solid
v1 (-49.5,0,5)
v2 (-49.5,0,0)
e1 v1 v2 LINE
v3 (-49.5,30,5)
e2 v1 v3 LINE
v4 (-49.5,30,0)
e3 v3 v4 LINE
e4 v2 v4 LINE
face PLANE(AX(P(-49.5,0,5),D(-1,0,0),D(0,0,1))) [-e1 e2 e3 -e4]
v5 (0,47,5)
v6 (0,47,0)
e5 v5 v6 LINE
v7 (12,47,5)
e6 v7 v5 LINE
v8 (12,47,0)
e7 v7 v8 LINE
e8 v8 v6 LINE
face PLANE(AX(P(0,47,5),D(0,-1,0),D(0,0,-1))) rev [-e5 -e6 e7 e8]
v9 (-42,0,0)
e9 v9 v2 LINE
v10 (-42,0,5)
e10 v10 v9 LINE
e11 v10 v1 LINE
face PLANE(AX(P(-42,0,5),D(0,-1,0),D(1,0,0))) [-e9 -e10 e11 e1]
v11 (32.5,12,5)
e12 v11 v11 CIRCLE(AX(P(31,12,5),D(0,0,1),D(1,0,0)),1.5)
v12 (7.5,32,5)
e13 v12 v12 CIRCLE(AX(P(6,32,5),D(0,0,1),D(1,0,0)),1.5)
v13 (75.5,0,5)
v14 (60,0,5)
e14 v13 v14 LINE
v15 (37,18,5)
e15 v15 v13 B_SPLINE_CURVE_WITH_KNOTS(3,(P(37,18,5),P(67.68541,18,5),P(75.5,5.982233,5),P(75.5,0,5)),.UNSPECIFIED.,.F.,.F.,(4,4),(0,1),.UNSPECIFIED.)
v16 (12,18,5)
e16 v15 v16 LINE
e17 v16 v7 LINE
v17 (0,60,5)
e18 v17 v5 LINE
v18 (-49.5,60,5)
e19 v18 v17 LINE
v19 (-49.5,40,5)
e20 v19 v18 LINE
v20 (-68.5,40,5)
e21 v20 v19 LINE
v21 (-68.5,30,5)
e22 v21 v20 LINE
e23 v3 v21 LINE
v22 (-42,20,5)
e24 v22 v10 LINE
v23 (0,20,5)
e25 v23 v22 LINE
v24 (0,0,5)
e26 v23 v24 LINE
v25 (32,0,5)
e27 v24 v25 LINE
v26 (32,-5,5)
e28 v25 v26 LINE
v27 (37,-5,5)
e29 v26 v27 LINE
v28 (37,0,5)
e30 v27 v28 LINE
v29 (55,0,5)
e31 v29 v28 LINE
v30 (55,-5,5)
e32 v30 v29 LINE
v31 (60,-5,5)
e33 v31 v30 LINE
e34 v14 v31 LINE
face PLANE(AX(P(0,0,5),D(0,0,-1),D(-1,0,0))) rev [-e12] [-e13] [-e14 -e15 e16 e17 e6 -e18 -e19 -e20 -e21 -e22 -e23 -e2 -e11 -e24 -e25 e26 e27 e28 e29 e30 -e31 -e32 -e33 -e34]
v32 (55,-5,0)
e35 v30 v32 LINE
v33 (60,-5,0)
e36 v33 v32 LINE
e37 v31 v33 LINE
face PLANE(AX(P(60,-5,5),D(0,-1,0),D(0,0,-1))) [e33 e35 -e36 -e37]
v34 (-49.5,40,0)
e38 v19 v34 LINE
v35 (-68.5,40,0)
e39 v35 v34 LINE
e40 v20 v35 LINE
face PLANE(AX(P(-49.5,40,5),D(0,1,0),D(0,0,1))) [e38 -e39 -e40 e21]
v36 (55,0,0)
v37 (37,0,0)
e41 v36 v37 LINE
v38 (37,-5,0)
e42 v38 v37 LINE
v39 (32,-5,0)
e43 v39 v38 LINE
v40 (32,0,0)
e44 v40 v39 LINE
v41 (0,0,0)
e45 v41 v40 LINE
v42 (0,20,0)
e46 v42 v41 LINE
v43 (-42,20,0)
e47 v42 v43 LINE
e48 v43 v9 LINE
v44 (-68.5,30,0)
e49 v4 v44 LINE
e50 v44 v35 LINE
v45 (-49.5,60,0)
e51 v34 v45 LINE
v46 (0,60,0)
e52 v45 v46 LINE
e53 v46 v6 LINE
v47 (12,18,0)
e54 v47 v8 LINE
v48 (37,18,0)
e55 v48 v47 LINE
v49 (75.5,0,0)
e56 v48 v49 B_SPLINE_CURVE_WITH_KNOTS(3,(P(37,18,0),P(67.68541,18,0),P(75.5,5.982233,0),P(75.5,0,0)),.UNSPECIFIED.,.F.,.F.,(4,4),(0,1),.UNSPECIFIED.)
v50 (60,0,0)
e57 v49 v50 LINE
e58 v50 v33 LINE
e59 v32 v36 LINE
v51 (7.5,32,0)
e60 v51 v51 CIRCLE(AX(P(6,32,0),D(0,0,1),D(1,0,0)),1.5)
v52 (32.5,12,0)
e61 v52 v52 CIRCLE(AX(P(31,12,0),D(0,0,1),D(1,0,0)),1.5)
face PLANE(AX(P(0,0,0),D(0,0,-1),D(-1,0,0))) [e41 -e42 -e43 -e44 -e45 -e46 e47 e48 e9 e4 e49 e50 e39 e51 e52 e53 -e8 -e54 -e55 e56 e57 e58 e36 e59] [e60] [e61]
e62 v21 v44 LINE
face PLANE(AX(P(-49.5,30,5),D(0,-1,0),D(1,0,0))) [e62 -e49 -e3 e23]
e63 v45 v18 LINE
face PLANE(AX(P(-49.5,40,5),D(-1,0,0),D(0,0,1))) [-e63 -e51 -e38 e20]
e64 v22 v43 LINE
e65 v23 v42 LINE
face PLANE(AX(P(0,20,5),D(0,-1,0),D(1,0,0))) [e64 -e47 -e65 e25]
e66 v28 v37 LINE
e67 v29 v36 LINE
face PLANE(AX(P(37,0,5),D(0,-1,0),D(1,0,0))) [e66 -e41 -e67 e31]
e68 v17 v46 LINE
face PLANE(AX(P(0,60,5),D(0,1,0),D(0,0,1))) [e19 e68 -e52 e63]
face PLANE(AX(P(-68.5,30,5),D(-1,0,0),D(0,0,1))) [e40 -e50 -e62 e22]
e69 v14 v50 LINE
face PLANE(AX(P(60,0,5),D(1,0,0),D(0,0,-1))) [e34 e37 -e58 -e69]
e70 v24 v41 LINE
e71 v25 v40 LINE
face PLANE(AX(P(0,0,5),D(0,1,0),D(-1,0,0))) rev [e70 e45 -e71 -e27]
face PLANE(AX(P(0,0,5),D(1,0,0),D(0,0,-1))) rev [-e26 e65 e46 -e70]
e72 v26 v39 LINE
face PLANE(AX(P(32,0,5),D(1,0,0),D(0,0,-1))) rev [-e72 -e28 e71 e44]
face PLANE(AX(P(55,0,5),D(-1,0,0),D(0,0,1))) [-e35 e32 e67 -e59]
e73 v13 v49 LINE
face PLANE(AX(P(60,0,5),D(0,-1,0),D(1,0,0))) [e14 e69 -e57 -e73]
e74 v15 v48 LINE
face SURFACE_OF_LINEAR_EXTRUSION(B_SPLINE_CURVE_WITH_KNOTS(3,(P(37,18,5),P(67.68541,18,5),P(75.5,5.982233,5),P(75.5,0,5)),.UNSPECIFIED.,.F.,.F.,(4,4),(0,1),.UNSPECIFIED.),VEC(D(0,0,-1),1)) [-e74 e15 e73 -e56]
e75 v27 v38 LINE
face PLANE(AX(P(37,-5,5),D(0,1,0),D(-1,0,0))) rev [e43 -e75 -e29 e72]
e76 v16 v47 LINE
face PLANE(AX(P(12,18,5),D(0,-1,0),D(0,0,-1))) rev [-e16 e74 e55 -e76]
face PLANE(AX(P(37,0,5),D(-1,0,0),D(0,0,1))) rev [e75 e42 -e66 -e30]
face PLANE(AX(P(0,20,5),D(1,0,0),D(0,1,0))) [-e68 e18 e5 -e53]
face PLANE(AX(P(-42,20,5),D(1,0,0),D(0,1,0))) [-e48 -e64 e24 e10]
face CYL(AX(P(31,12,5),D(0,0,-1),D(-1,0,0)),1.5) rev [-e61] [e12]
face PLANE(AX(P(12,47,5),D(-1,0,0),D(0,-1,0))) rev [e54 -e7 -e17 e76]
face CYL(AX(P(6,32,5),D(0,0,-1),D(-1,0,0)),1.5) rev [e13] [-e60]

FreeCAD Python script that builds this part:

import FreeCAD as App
import Part
import Sketcher
Q = App.Units.Quantity

doc = App.newDocument("Part")
body = doc.addObject("PartDesign::Body", "Body")

# Sketch on XY plane
sketch1 = body.newObject("Sketcher::SketchObject", "Sketch")
sketch1.AttachmentSupport = (doc.getObject("XY_Plane"), [""])
sketch1.MapMode = "FlatFace"
sketch1.addGeometry([
    Part.LineSegment(App.Vector(0, 0, 0), App.Vector(32, 0, 0)),  # 0
    Part.LineSegment(App.Vector(32, 0, 0), App.Vector(32, -5, 0)),  # 1
    Part.LineSegment(App.Vector(32, -5, 0), App.Vector(37, -5, 0)),  # 2
    Part.LineSegment(App.Vector(37, -5, 0), App.Vector(37, 18, 0)),  # 3
    Part.LineSegment(App.Vector(37, 18, 0), App.Vector(12, 18, 0)),  # 4
    Part.LineSegment(App.Vector(12, 18, 0), App.Vector(12, 47, 0)),  # 5
    Part.LineSegment(App.Vector(12, 47, 0), App.Vector(0, 47, 0)),  # 6
    Part.LineSegment(App.Vector(0, 47, 0), App.Vector(0, 0, 0)),  # 7
    Part.Circle(App.Vector(31, 12, 0), App.Vector(0, 0, 1), 1.5),  # 8
    Part.Circle(App.Vector(6, 32, 0), App.Vector(0, 0, 1), 1.5),  # 9
], False)
sketch1.addConstraint([
    Sketcher.Constraint("Coincident", 0, 2, 1, 1),
    Sketcher.Constraint("Coincident", 1, 2, 2, 1),
    Sketcher.Constraint("Coincident", 2, 2, 3, 1),
    Sketcher.Constraint("Coincident", 3, 2, 4, 1),
    Sketcher.Constraint("Coincident", 4, 2, 5, 1),
    Sketcher.Constraint("Coincident", 5, 2, 6, 1),
    Sketcher.Constraint("Coincident", 6, 2, 7, 1),
    Sketcher.Constraint("Coincident", 7, 2, 0, 1),
    Sketcher.Constraint("Horizontal", 0),
    Sketcher.Constraint("Vertical", 1),
    Sketcher.Constraint("Horizontal", 2),
    Sketcher.Constraint("Vertical", 3),
    Sketcher.Constraint("Horizontal", 4),
    Sketcher.Constraint("Vertical", 5),
    Sketcher.Constraint("Horizontal", 6),
    Sketcher.Constraint("Vertical", 7),
    Sketcher.Constraint("Coincident", 7, 2, -1, 1),
    Sketcher.Constraint("Equal", 8, 9),
    Sketcher.Constraint("Equal", 2, 1),
    Sketcher.Constraint("Diameter", 8, Q("3 mm")),
    Sketcher.Constraint("DistanceX", 0, 1, 0, 2, Q("32 mm")),
    Sketcher.Constraint("DistanceX", 2, 1, 2, 2, Q("5 mm")),
    Sketcher.Constraint("DistanceX", 4, 2, 4, 1, Q("25 mm")),
    Sketcher.Constraint("DistanceY", 3, 1, 3, 2, Q("23 mm")),
    Sketcher.Constraint("DistanceY", 5, 1, 5, 2, Q("29 mm")),
    Sketcher.Constraint("DistanceX", -1, 1, 8, 3, Q("31 mm")),
    Sketcher.Constraint("DistanceY", -1, 1, 8, 3, Q("12 mm")),
    Sketcher.Constraint("DistanceX", -1, 1, 9, 3, Q("6 mm")),
    Sketcher.Constraint("DistanceY", -1, 1, 9, 3, Q("32 mm")),
])
pad1 = body.newObject("PartDesign::Pad", "Pad")
pad1.Profile = sketch1
pad1.Length = 5

# Sketch on XY plane
sketch2 = body.newObject("Sketcher::SketchObject", "Sketch001")
sketch2.AttachmentSupport = (doc.getObject("XY_Plane"), [""])
sketch2.MapMode = "FlatFace"
sketch2.addGeometry([
    Part.LineSegment(App.Vector(55, 0, 0), App.Vector(37, 0, 0)),  # 0
    Part.LineSegment(App.Vector(37, 0, 0), App.Vector(37, 18, 0)),  # 1
    Part.BSplineCurve([App.Vector(75.5, 0, 0), App.Vector(75.5, 5.982233, 0), App.Vector(67.68541, 18, 0), App.Vector(37, 18, 0)], [4, 4], [0, 1], False, 3, [1, 1, 1, 1], False),  # 2
    Part.LineSegment(App.Vector(75.5, 0, 0), App.Vector(60, 0, 0)),  # 3
    Part.LineSegment(App.Vector(60, 0, 0), App.Vector(60, -5, 0)),  # 4
    Part.LineSegment(App.Vector(60, -5, 0), App.Vector(55, -5, 0)),  # 5
    Part.LineSegment(App.Vector(55, -5, 0), App.Vector(55, 0, 0)),  # 6
    Part.LineSegment(App.Vector(-42, 0, 0), App.Vector(-49.5, 0, 0)),  # 7
    Part.LineSegment(App.Vector(-49.5, 0, 0), App.Vector(-49.5, 30, 0)),  # 8
    Part.LineSegment(App.Vector(-49.5, 30, 0), App.Vector(-68.5, 30, 0)),  # 9
    Part.LineSegment(App.Vector(-68.5, 30, 0), App.Vector(-68.5, 40, 0)),  # 10
    Part.LineSegment(App.Vector(-68.5, 40, 0), App.Vector(-49.5, 40, 0)),  # 11
    Part.LineSegment(App.Vector(-49.5, 40, 0), App.Vector(-49.5, 110, 0)),  # 12
    Part.LineSegment(App.Vector(-49.5, 110, 0), App.Vector(-68.5, 110, 0)),  # 13
    Part.LineSegment(App.Vector(-68.5, 110, 0), App.Vector(-68.5, 120, 0)),  # 14
    Part.LineSegment(App.Vector(-68.5, 120, 0), App.Vector(-49.5, 120, 0)),  # 15
    Part.LineSegment(App.Vector(-49.5, 120, 0), App.Vector(-49.5, 142, 0)),  # 16
    Part.LineSegment(App.Vector(-49.5, 142, 0), App.Vector(1, 142, 0)),  # 17
    Part.LineSegment(App.Vector(1, 142, 0), App.Vector(1, 167, 0)),  # 18
    Part.LineSegment(App.Vector(1, 167, 0), App.Vector(10, 167, 0)),  # 19
    Part.LineSegment(App.Vector(10, 167, 0), App.Vector(10, 172, 0)),  # 20
    Part.LineSegment(App.Vector(10, 172, 0), App.Vector(20, 172, 0)),  # 21
    Part.LineSegment(App.Vector(20, 172, 0), App.Vector(20, 167, 0)),  # 22
    Part.LineSegment(App.Vector(20, 167, 0), App.Vector(25, 167, 0)),  # 23
    Part.LineSegment(App.Vector(25, 167, 0), App.Vector(25, 90, 0)),  # 24
    Part.LineSegment(App.Vector(25, 90, 0), App.Vector(-20, 90, 0)),  # 25
    Part.LineSegment(App.Vector(-20, 90, 0), App.Vector(-20, 60, 0)),  # 26
    Part.LineSegment(App.Vector(-20, 60, 0), App.Vector(0, 60, 0)),  # 27
    Part.LineSegment(App.Vector(0, 60, 0), App.Vector(0, 20, 0)),  # 28
    Part.LineSegment(App.Vector(0, 20, 0), App.Vector(-42, 20, 0)),  # 29
    Part.LineSegment(App.Vector(-42, 20, 0), App.Vector(-42, 0, 0)),  # 30
], False)
sketch2.addConstraint([
    Sketcher.Constraint("Block", 2),
    Sketcher.Constraint("Coincident", 0, 2, 1, 1),
    Sketcher.Constraint("Coincident", 1, 2, 2, 2),
    Sketcher.Constraint("Coincident", 2, 1, 3, 1),
    Sketcher.Constraint("Coincident", 3, 2, 4, 1),
    Sketcher.Constraint("Coincident", 4, 2, 5, 1),
    Sketcher.Constraint("Coincident", 5, 2, 6, 1),
    Sketcher.Constraint("Coincident", 6, 2, 0, 1),
    Sketcher.Constraint("Coincident", 7, 2, 8, 1),
    Sketcher.Constraint("Coincident", 8, 2, 9, 1),
    Sketcher.Constraint("Coincident", 9, 2, 10, 1),
    Sketcher.Constraint("Coincident", 10, 2, 11, 1),
    Sketcher.Constraint("Coincident", 11, 2, 12, 1),
    Sketcher.Constraint("Coincident", 12, 2, 13, 1),
    Sketcher.Constraint("Coincident", 13, 2, 14, 1),
    Sketcher.Constraint("Coincident", 14, 2, 15, 1),
    Sketcher.Constraint("Coincident", 15, 2, 16, 1),
    Sketcher.Constraint("Coincident", 16, 2, 17, 1),
    Sketcher.Constraint("Coincident", 17, 2, 18, 1),
    Sketcher.Constraint("Coincident", 18, 2, 19, 1),
    Sketcher.Constraint("Coincident", 19, 2, 20, 1),
    Sketcher.Constraint("Coincident", 20, 2, 21, 1),
    Sketcher.Constraint("Coincident", 21, 2, 22, 1),
    Sketcher.Constraint("Coincident", 22, 2, 23, 1),
    Sketcher.Constraint("Coincident", 23, 2, 24, 1),
    Sketcher.Constraint("Coincident", 24, 2, 25, 1),
    Sketcher.Constraint("Coincident", 25, 2, 26, 1),
    Sketcher.Constraint("Coincident", 26, 2, 27, 1),
    Sketcher.Constraint("Coincident", 27, 2, 28, 1),
    Sketcher.Constraint("Coincident", 28, 2, 29, 1),
    Sketcher.Constraint("Coincident", 29, 2, 30, 1),
    Sketcher.Constraint("Coincident", 30, 2, 7, 1),
    Sketcher.Constraint("Horizontal", 0),
    Sketcher.Constraint("Vertical", 1),
    Sketcher.Constraint("Horizontal", 3),
    Sketcher.Constraint("Vertical", 4),
    Sketcher.Constraint("Horizontal", 5),
    Sketcher.Constraint("Vertical", 6),
    Sketcher.Constraint("Horizontal", 7),
    Sketcher.Constraint("Vertical", 8),
    Sketcher.Constraint("Horizontal", 9),
    Sketcher.Constraint("Vertical", 10),
    Sketcher.Constraint("Horizontal", 11),
    Sketcher.Constraint("Vertical", 12),
    Sketcher.Constraint("Horizontal", 13),
    Sketcher.Constraint("Vertical", 14),
    Sketcher.Constraint("Horizontal", 15),
    Sketcher.Constraint("Vertical", 16),
    Sketcher.Constraint("Horizontal", 17),
    Sketcher.Constraint("Vertical", 18),
    Sketcher.Constraint("Horizontal", 19),
    Sketcher.Constraint("Vertical", 20),
    Sketcher.Constraint("Horizontal", 21),
    Sketcher.Constraint("Vertical", 22),
    Sketcher.Constraint("Horizontal", 23),
    Sketcher.Constraint("Vertical", 24),
    Sketcher.Constraint("Horizontal", 25),
    Sketcher.Constraint("Vertical", 26),
    Sketcher.Constraint("Horizontal", 27),
    Sketcher.Constraint("Vertical", 28),
    Sketcher.Constraint("Horizontal", 29),
    Sketcher.Constraint("Vertical", 30),
    Sketcher.Constraint("PointOnObject", 0, 2, -1),
    Sketcher.Constraint("PointOnObject", 7, 2, -1),
    Sketcher.Constraint("PointOnObject", 27, 2, -2),
    Sketcher.Constraint("DistanceX", 0, 2, 0, 1, Q("18 mm")),
    Sketcher.Constraint("DistanceX", 5, 2, 5, 1, Q("5 mm")),
    Sketcher.Constraint("DistanceX", 9, 2, 9, 1, Q("19 mm")),
    Sketcher.Constraint("DistanceX", 11, 1, 11, 2, Q("19 mm")),
    Sketcher.Constraint("DistanceX", 13, 2, 13, 1, Q("19 mm")),
    Sketcher.Constraint("DistanceX", 15, 1, 15, 2, Q("19 mm")),
    Sketcher.Constraint("DistanceX", 19, 1, 19, 2, Q("9 mm")),
    Sketcher.Constraint("DistanceX", 21, 1, 21, 2, Q("10 mm")),
    Sketcher.Constraint("DistanceX", 23, 1, 23, 2, Q("5 mm")),
    Sketcher.Constraint("DistanceX", 25, 2, 25, 1, Q("45 mm")),
    Sketcher.Constraint("DistanceX", 27, 1, 27, 2, Q("20 mm")),
    Sketcher.Constraint("DistanceX", 29, 2, 29, 1, Q("42 mm")),
    Sketcher.Constraint("DistanceY", 4, 2, 4, 1, Q("5 mm")),
    Sketcher.Constraint("DistanceY", 8, 1, 8, 2, Q("30 mm")),
    Sketcher.Constraint("DistanceY", 10, 1, 10, 2, Q("10 mm")),
    Sketcher.Constraint("DistanceY", 12, 1, 12, 2, Q("70 mm")),
    Sketcher.Constraint("DistanceY", 14, 1, 14, 2, Q("10 mm")),
    Sketcher.Constraint("DistanceY", 16, 1, 16, 2, Q("22 mm")),
    Sketcher.Constraint("DistanceY", 18, 1, 18, 2, Q("25 mm")),
    Sketcher.Constraint("DistanceY", 20, 1, 20, 2, Q("5 mm")),
    Sketcher.Constraint("DistanceY", 22, 2, 22, 1, Q("5 mm")),
    Sketcher.Constraint("DistanceY", 24, 2, 24, 1, Q("77 mm")),
    Sketcher.Constraint("DistanceY", 26, 2, 26, 1, Q("30 mm")),
    Sketcher.Constraint("DistanceY", 28, 2, 28, 1, Q("40 mm")),
    Sketcher.Constraint("DistanceX", 7, 2, 7, 1, Q("7.5 mm")),
])
pad2 = body.newObject("PartDesign::Pad", "Pad001")
pad2.Profile = sketch2
pad2.Length = 5

# Sketch on XY plane
sketch3 = body.newObject("Sketcher::SketchObject", "Sketch002")
sketch3.AttachmentSupport = (doc.getObject("XY_Plane"), [""])
sketch3.MapMode = "FlatFace"
sketch3.addGeometry([
    Part.LineSegment(App.Vector(49, 182, 0), App.Vector(49, 60, 0)),
    Part.LineSegment(App.Vector(49, 60, 0), App.Vector(-187, 60, 0)),
    Part.LineSegment(App.Vector(-187, 60, 0), App.Vector(-187, 182, 0)),
    Part.LineSegment(App.Vector(-187, 182, 0), App.Vector(49, 182, 0)),
], False)
sketch3.addConstraint([
    Sketcher.Constraint("Coincident", 0, 2, 1, 1),
    Sketcher.Constraint("Coincident", 1, 2, 2, 1),
    Sketcher.Constraint("Coincident", 2, 2, 3, 1),
    Sketcher.Constraint("Coincident", 3, 2, 0, 1),
    Sketcher.Constraint("Vertical", 0),
    Sketcher.Constraint("Horizontal", 1),
    Sketcher.Constraint("Vertical", 2),
    Sketcher.Constraint("Horizontal", 3),
    Sketcher.Constraint("DistanceY", -1, 1, 0, 2, Q("60 mm")),
    Sketcher.Constraint("DistanceX", 1, 2, 1, 1, Q("236.288261 mm")),
    Sketcher.Constraint("DistanceY", 0, 2, 0, 1, Q("122.224262 mm")),
    Sketcher.Constraint("DistanceX", -1, 1, 0, 2, Q("49.154494 mm")),
])
pocket1 = body.newObject("PartDesign::Pocket", "Pocket")
pocket1.Profile = sketch3
pocket1.Length = 5
pocket1.Reversed = True

doc.recompute()
